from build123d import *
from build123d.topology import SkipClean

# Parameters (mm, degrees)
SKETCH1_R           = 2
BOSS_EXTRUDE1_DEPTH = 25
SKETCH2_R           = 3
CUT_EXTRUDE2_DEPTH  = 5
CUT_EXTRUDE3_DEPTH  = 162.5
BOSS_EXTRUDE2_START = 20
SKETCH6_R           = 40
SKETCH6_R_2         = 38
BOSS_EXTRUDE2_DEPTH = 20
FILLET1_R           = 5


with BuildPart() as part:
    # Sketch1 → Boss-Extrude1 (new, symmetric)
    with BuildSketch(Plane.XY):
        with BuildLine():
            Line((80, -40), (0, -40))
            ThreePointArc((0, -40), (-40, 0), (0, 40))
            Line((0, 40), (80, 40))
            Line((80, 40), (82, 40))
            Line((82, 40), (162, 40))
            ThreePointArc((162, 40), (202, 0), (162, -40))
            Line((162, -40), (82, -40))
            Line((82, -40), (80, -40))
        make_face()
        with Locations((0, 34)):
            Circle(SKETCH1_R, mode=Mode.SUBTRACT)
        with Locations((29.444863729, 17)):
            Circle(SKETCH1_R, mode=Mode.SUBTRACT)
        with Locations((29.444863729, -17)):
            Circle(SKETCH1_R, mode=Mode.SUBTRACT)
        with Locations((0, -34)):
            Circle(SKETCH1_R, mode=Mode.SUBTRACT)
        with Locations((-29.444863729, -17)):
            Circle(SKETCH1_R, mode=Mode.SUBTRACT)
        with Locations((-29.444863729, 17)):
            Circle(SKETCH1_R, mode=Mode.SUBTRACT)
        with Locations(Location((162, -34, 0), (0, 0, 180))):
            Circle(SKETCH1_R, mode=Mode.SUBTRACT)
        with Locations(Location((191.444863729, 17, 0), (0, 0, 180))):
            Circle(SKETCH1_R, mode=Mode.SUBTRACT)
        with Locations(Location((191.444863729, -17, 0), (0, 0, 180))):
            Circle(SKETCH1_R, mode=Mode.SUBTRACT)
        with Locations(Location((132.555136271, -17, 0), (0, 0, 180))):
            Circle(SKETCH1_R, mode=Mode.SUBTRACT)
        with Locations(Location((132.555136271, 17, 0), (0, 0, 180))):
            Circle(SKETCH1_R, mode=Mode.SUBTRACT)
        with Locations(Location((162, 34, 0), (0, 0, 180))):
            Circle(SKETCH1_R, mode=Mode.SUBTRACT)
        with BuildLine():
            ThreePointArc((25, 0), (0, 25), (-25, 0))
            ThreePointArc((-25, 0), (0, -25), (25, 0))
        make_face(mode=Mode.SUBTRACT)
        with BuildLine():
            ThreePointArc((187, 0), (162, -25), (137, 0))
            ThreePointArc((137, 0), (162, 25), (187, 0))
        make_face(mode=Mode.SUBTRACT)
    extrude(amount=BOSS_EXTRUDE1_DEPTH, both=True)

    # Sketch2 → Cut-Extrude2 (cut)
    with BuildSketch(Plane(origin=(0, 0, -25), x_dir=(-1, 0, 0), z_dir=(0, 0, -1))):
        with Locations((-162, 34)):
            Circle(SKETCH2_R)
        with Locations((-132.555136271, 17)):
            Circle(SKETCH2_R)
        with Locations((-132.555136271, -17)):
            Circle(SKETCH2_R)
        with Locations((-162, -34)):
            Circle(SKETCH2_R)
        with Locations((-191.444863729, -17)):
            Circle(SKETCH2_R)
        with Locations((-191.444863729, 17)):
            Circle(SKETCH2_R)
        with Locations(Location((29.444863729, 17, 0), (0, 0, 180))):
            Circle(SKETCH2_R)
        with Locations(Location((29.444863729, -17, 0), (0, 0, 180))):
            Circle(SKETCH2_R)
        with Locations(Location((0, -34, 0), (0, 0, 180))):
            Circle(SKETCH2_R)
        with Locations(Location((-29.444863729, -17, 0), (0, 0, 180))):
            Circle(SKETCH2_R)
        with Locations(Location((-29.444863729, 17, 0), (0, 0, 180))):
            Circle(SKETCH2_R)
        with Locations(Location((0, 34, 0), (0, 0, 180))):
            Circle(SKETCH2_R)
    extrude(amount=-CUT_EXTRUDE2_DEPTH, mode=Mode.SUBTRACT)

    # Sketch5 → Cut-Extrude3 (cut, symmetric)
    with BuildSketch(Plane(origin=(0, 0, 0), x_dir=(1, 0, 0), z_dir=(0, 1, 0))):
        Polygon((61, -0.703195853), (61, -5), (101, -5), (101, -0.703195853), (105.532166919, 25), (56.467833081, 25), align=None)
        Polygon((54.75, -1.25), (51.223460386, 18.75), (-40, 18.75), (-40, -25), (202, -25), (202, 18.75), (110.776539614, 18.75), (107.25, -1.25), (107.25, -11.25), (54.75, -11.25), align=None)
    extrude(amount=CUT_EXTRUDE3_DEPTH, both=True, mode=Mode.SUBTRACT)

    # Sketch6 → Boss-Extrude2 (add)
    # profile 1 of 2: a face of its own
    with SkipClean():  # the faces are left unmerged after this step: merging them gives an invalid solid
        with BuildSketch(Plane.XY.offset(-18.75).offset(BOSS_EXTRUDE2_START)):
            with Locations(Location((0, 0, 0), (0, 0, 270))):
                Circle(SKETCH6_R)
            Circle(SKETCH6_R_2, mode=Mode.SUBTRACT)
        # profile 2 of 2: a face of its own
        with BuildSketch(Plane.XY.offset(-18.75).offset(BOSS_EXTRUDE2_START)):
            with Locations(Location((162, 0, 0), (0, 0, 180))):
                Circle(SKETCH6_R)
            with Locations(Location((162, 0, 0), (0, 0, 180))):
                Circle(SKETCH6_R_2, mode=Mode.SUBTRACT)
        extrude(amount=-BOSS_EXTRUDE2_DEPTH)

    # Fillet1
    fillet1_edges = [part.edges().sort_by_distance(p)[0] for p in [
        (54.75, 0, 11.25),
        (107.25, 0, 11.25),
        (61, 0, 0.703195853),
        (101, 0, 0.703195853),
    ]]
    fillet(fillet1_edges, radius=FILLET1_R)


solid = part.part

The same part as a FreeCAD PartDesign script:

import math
import FreeCAD as App
import Part
import Sketcher

V = App.Vector
Q = App.Units.Quantity


def edges_at(feature, points):
    """Names of the edges that pass closest to the given points."""
    edges = feature.Shape.Edges
    near = lambda p: min(range(len(edges)), key=lambda i: edges[i].distToShape(Part.Vertex(*p))[0])
    return sorted({f"Edge{near(p) + 1}" for p in points})


def add_polygon(sketch, points):
    """Adds a closed chain of lines whose ends are joined by coincident constraints."""
    first, n = sketch.GeometryCount, len(points)
    for a, b in zip(points, points[1:] + points[:1]):
        sketch.addGeometry(Part.LineSegment(App.Vector(*a, 0), App.Vector(*b, 0)), False)
    for i in range(n):
        sketch.addConstraint(Sketcher.Constraint("Coincident", first + i, 2, first + (i + 1) % n, 1))

doc = App.newDocument("Part")
body = doc.addObject("PartDesign::Body", "Body")

# Sketch on XY plane
sketch1 = body.newObject("Sketcher::SketchObject", "Sketch")
sketch1.AttachmentSupport = (doc.getObject("XY_Plane"), [""])
sketch1.MapMode = "FlatFace"
sketch1.addGeometry([
    Part.ArcOfCircle(Part.Circle(V(0, 0, 0), V(0, 0, 1), 40), math.radians(90), math.radians(270)),  # 0
    Part.LineSegment(V(0, -40, 0), V(162, -40, 0)),  # 1
    Part.ArcOfCircle(Part.Circle(V(162, 0, 0), V(0, 0, 1), 40), math.radians(-90), math.radians(90)),  # 2
    Part.LineSegment(V(162, 40, 0), V(0, 40, 0)),  # 3
    Part.Circle(V(162, -34, 0), V(0, 0, 1), 2),  # 4
    Part.Circle(V(191.444864, -17, 0), V(0, 0, 1), 2),  # 5
    Part.Circle(V(132.555136, -17, 0), V(0, 0, 1), 2),  # 6
    Part.Circle(V(0, -34, 0), V(0, 0, 1), 2),  # 7
    Part.Circle(V(29.444864, -17, 0), V(0, 0, 1), 2),  # 8
    Part.Circle(V(-29.444864, -17, 0), V(0, 0, 1), 2),  # 9
    Part.Circle(V(162, 0, 0), V(0, 0, 1), 25),  # 10
    Part.Circle(V(191.444864, 17, 0), V(0, 0, 1), 2),  # 11
    Part.Circle(V(132.555136, 17, 0), V(0, 0, 1), 2),  # 12
    Part.Circle(V(162, 34, 0), V(0, 0, 1), 2),  # 13
    Part.Circle(V(29.444864, 17, 0), V(0, 0, 1), 2),  # 14
    Part.Circle(V(0, 0, 0), V(0, 0, 1), 25),  # 15
    Part.Circle(V(-29.444864, 17, 0), V(0, 0, 1), 2),  # 16
    Part.Circle(V(0, 34, 0), V(0, 0, 1), 2),  # 17
], False)
sketch1.addConstraint([
    Sketcher.Constraint("Tangent", 0, 2, 1, 1),
    Sketcher.Constraint("Tangent", 1, 2, 2, 1),
    Sketcher.Constraint("Tangent", 2, 2, 3, 1),
    Sketcher.Constraint("Tangent", 3, 2, 0, 1),
    Sketcher.Constraint("Horizontal", 1),
    Sketcher.Constraint("Horizontal", 3),
    Sketcher.Constraint("Coincident", 0, 3, -1, 1),
    Sketcher.Constraint("Coincident", 15, 3, -1, 1),
    Sketcher.Constraint("Coincident", 10, 3, 2, 3),
    Sketcher.Constraint("Equal", 4, 5),
    Sketcher.Constraint("Equal", 5, 6),
    Sketcher.Constraint("Equal", 6, 7),
    Sketcher.Constraint("Equal", 7, 8),
    Sketcher.Constraint("Equal", 8, 9),
    Sketcher.Constraint("Equal", 9, 11),
    Sketcher.Constraint("Equal", 11, 12),
    Sketcher.Constraint("Equal", 12, 13),
    Sketcher.Constraint("Equal", 13, 14),
    Sketcher.Constraint("Equal", 10, 15),
    Sketcher.Constraint("Equal", 14, 16),
    Sketcher.Constraint("Equal", 16, 17),
    Sketcher.Constraint("Symmetric", 9, 3, 14, 3, -1, 1),
    Sketcher.Constraint("Symmetric", 8, 3, 16, 3, -1, 1),
    Sketcher.Constraint("Symmetric", 7, 3, 17, 3, -1, 1),
    Sketcher.Constraint("Symmetric", 8, 3, 9, 3, -2),
    Sketcher.Constraint("Symmetric", 5, 3, 11, 3, -1),
    Sketcher.Constraint("Symmetric", 6, 3, 12, 3, -1),
    Sketcher.Constraint("Symmetric", 4, 3, 13, 3, -1),
    Sketcher.Constraint("PointOnObject", 7, 3, -2),
    Sketcher.Constraint("Horizontal", 5, 3, 6, 3),
    Sketcher.Constraint("Horizontal", 4, 3, 7, 3),
    Sketcher.Constraint("Horizontal", 6, 3, 8, 3),
    Sketcher.Constraint("Vertical", 2, 3, 4, 3),
    Sketcher.Constraint("Diameter", 4, 4.0),
    Sketcher.Constraint("Diameter", 10, 50.0),
    Sketcher.Constraint("Radius", 0, 40.0),
    Sketcher.Constraint("DistanceX", 1, 1, 1, 2, 162.0),
    Sketcher.Constraint("DistanceY", 4, 3, -1, 1, 34.0),
    Sketcher.Constraint("DistanceY", 5, 3, -1, 1, 17.0),
    Sketcher.Constraint("DistanceX", 9, 3, 6, 3, 162.0),
    Sketcher.Constraint("DistanceX", -1, 1, 5, 3, 191.444864),
    Sketcher.Constraint("DistanceX", -1, 1, 6, 3, 132.555136),
])
pad1 = body.newObject("PartDesign::Pad", "Pad")
pad1.Profile = sketch1
pad1.Length = 50
pad1.Midplane = True

# Sketch on XY plane
sketch2 = body.newObject("Sketcher::SketchObject", "Sketch001")
sketch2.AttachmentSupport = (doc.getObject("XY_Plane"), [""])
sketch2.MapMode = "FlatFace"
sketch2.AttachmentOffset = App.Placement(V(0, 0, -25), App.Rotation())
sketch2.addGeometry([
    Part.Circle(V(162, 34, 0), V(0, 0, 1), 3),  # 0
    Part.Circle(V(132.555136, 17, 0), V(0, 0, 1), 3),  # 1
    Part.Circle(V(132.555136, -17, 0), V(0, 0, 1), 3),  # 2
    Part.Circle(V(162, -34, 0), V(0, 0, 1), 3),  # 3
    Part.Circle(V(191.444864, -17, 0), V(0, 0, 1), 3),  # 4
    Part.Circle(V(191.444864, 17, 0), V(0, 0, 1), 3),  # 5
    Part.Circle(V(-29.444864, 17, 0), V(0, 0, 1), 3),  # 6
    Part.Circle(V(-29.444864, -17, 0), V(0, 0, 1), 3),  # 7
    Part.Circle(V(0, -34, 0), V(0, 0, 1), 3),  # 8
    Part.Circle(V(29.444864, -17, 0), V(0, 0, 1), 3),  # 9
    Part.Circle(V(29.444864, 17, 0), V(0, 0, 1), 3),  # 10
    Part.Circle(V(0, 34, 0), V(0, 0, 1), 3),  # 11
], False)
sketch2.addConstraint([
    Sketcher.Constraint("Equal", 0, 1),
    Sketcher.Constraint("Equal", 1, 2),
    Sketcher.Constraint("Equal", 2, 3),
    Sketcher.Constraint("Equal", 3, 4),
    Sketcher.Constraint("Equal", 4, 5),
    Sketcher.Constraint("Equal", 5, 6),
    Sketcher.Constraint("Equal", 6, 7),
    Sketcher.Constraint("Equal", 7, 8),
    Sketcher.Constraint("Equal", 8, 9),
    Sketcher.Constraint("Equal", 9, 10),
    Sketcher.Constraint("Equal", 10, 11),
    Sketcher.Constraint("Symmetric", 6, 3, 9, 3, -1, 1),
    Sketcher.Constraint("Symmetric", 7, 3, 10, 3, -1, 1),
    Sketcher.Constraint("Symmetric", 8, 3, 11, 3, -1, 1),
    Sketcher.Constraint("Symmetric", 7, 3, 9, 3, -2),
    Sketcher.Constraint("Symmetric", 1, 3, 2, 3, -1),
    Sketcher.Constraint("Symmetric", 0, 3, 3, 3, -1),
    Sketcher.Constraint("Symmetric", 4, 3, 5, 3, -1),
    Sketcher.Constraint("PointOnObject", 8, 3, -2),
    Sketcher.Constraint("Horizontal", 2, 3, 4, 3),
    Sketcher.Constraint("Horizontal", 5, 3, 6, 3),
    Sketcher.Constraint("Horizontal", 3, 3, 8, 3),
    Sketcher.Constraint("Diameter", 0, 6.0),
    Sketcher.Constraint("DistanceX", -1, 1, 0, 3, 162.0),
    Sketcher.Constraint("DistanceY", -1, 1, 0, 3, 34.0),
    Sketcher.Constraint("DistanceY", -1, 1, 1, 3, 17.0),
    Sketcher.Constraint("DistanceX", 6, 3, 1, 3, 162.0),
    Sketcher.Constraint("DistanceX", -1, 1, 1, 3, 132.555136),
    Sketcher.Constraint("DistanceX", -1, 1, 4, 3, 191.444864),
])
pocket1 = body.newObject("PartDesign::Pocket", "Pocket")
pocket1.Profile = sketch2
pocket1.Length = 5
pocket1.Reversed = True

# Sketch on XZ plane
sketch3 = body.newObject("Sketcher::SketchObject", "Sketch002")
sketch3.AttachmentSupport = (doc.getObject("XZ_Plane"), [""])
sketch3.MapMode = "FlatFace"
add_polygon(sketch3, [(61, 0.703196), (61, 5), (101, 5), (101, 0.703196), (105.532167, -25), (56.467833, -25)])  # lines 0-5
add_polygon(sketch3, [(54.75, 1.25), (51.22346, -18.75), (-40, -18.75), (-40, 25), (202, 25), (202, -18.75), (110.77654, -18.75), (107.25, 1.25), (107.25, 11.25), (54.75, 11.25)])  # lines 6-15
sketch3.addConstraint([
    Sketcher.Constraint("Vertical", 0),
    Sketcher.Constraint("Horizontal", 1),
    Sketcher.Constraint("Vertical", 2),
    Sketcher.Constraint("Horizontal", 4),
    Sketcher.Constraint("Horizontal", 7),
    Sketcher.Constraint("Vertical", 8),
    Sketcher.Constraint("Horizontal", 9),
    Sketcher.Constraint("Vertical", 10),
    Sketcher.Constraint("Horizontal", 11),
    Sketcher.Constraint("Vertical", 13),
    Sketcher.Constraint("Horizontal", 14),
    Sketcher.Constraint("Vertical", 15),
    Sketcher.Constraint("Parallel", 5, 6),
    Sketcher.Constraint("Parallel", 3, 12),
    Sketcher.Constraint("Horizontal", 2, 2, 5, 2),
    Sketcher.Constraint("Horizontal", 7, 2, 10, 2),
    Sketcher.Constraint("Horizontal", 12, 2, 15, 2),
    Sketcher.Constraint("Equal", 7, 11),
    Sketcher.Constraint("Equal", 3, 5),
    Sketcher.Constraint("DistanceX", 1, 1, 1, 2, 40.0),
    Sketcher.Constraint("DistanceX", 9, 1, 9, 2, 242.0),
    Sketcher.Constraint("DistanceY", 13, 1, 13, 2, 10.0),
    Sketcher.Constraint("Angle", 3, Q("-80 deg")),
    Sketcher.Constraint("DistanceX", 14, 2, 14, 1, 52.5),
    Sketcher.Constraint("DistanceX", -1, 1, 0, 2, 61.0),
    Sketcher.Constraint("DistanceY", -1, 1, 0, 2, 5.0),
    Sketcher.Constraint("DistanceY", 3, 2, -1, 1, 25.0),
    Sketcher.Constraint("DistanceX", 7, 2, -1, 1, 40.0),
    Sketcher.Constraint("DistanceY", -1, 1, 8, 2, 25.0),
    Sketcher.Constraint("DistanceY", 11, 2, 12, 2, 20.0),
    Sketcher.Constraint("DistanceY", 8, 1, 8, 2, 43.75),
    Sketcher.Constraint("Distance", 3, 26.099709),
])
pocket2 = body.newObject("PartDesign::Pocket", "Pocket001")
pocket2.Profile = sketch3
pocket2.Length = 325
pocket2.Midplane = True

# Sketch on XY plane
sketch4 = body.newObject("Sketcher::SketchObject", "Sketch003")
sketch4.AttachmentSupport = (doc.getObject("XY_Plane"), [""])
sketch4.MapMode = "FlatFace"
sketch4.AttachmentOffset = App.Placement(V(0, 0, 1.25), App.Rotation())
sketch4.addGeometry([
    Part.Circle(V(0, 0, 0), V(0, 0, 1), 40),
    Part.Circle(V(0, 0, 0), V(0, 0, 1), 38),
    Part.Circle(V(162, 0, 0), V(0, 0, 1), 40),
    Part.Circle(V(162, 0, 0), V(0, 0, 1), 38),
], False)
sketch4.addConstraint([
    Sketcher.Constraint("Coincident", 0, 3, -1, 1),
    Sketcher.Constraint("Coincident", 1, 3, -1, 1),
    Sketcher.Constraint("Coincident", 3, 3, 2, 3),
    Sketcher.Constraint("Equal", 0, 2),
    Sketcher.Constraint("Equal", 1, 3),
    Sketcher.Constraint("PointOnObject", 2, 3, -1),
    Sketcher.Constraint("Diameter", 0, 80.0),
    Sketcher.Constraint("Diameter", 1, 76.0),
    Sketcher.Constraint("DistanceX", -1, 1, 2, 3, 162.0),
])
pad2 = body.newObject("PartDesign::Pad", "Pad001")
pad2.Profile = sketch4
pad2.Length = 20
pad2.Reversed = True
doc.recompute()

fillet = body.newObject("PartDesign::Fillet", "Fillet")
fillet.Base = (pad2, edges_at(pad2, [
    (54.75, 0, 11.25),
    (107.25, 0, 11.25),
    (61, 0, 0.703),
    (101, 0, 0.703),
]))
fillet.Radius = 5

doc.recompute()
